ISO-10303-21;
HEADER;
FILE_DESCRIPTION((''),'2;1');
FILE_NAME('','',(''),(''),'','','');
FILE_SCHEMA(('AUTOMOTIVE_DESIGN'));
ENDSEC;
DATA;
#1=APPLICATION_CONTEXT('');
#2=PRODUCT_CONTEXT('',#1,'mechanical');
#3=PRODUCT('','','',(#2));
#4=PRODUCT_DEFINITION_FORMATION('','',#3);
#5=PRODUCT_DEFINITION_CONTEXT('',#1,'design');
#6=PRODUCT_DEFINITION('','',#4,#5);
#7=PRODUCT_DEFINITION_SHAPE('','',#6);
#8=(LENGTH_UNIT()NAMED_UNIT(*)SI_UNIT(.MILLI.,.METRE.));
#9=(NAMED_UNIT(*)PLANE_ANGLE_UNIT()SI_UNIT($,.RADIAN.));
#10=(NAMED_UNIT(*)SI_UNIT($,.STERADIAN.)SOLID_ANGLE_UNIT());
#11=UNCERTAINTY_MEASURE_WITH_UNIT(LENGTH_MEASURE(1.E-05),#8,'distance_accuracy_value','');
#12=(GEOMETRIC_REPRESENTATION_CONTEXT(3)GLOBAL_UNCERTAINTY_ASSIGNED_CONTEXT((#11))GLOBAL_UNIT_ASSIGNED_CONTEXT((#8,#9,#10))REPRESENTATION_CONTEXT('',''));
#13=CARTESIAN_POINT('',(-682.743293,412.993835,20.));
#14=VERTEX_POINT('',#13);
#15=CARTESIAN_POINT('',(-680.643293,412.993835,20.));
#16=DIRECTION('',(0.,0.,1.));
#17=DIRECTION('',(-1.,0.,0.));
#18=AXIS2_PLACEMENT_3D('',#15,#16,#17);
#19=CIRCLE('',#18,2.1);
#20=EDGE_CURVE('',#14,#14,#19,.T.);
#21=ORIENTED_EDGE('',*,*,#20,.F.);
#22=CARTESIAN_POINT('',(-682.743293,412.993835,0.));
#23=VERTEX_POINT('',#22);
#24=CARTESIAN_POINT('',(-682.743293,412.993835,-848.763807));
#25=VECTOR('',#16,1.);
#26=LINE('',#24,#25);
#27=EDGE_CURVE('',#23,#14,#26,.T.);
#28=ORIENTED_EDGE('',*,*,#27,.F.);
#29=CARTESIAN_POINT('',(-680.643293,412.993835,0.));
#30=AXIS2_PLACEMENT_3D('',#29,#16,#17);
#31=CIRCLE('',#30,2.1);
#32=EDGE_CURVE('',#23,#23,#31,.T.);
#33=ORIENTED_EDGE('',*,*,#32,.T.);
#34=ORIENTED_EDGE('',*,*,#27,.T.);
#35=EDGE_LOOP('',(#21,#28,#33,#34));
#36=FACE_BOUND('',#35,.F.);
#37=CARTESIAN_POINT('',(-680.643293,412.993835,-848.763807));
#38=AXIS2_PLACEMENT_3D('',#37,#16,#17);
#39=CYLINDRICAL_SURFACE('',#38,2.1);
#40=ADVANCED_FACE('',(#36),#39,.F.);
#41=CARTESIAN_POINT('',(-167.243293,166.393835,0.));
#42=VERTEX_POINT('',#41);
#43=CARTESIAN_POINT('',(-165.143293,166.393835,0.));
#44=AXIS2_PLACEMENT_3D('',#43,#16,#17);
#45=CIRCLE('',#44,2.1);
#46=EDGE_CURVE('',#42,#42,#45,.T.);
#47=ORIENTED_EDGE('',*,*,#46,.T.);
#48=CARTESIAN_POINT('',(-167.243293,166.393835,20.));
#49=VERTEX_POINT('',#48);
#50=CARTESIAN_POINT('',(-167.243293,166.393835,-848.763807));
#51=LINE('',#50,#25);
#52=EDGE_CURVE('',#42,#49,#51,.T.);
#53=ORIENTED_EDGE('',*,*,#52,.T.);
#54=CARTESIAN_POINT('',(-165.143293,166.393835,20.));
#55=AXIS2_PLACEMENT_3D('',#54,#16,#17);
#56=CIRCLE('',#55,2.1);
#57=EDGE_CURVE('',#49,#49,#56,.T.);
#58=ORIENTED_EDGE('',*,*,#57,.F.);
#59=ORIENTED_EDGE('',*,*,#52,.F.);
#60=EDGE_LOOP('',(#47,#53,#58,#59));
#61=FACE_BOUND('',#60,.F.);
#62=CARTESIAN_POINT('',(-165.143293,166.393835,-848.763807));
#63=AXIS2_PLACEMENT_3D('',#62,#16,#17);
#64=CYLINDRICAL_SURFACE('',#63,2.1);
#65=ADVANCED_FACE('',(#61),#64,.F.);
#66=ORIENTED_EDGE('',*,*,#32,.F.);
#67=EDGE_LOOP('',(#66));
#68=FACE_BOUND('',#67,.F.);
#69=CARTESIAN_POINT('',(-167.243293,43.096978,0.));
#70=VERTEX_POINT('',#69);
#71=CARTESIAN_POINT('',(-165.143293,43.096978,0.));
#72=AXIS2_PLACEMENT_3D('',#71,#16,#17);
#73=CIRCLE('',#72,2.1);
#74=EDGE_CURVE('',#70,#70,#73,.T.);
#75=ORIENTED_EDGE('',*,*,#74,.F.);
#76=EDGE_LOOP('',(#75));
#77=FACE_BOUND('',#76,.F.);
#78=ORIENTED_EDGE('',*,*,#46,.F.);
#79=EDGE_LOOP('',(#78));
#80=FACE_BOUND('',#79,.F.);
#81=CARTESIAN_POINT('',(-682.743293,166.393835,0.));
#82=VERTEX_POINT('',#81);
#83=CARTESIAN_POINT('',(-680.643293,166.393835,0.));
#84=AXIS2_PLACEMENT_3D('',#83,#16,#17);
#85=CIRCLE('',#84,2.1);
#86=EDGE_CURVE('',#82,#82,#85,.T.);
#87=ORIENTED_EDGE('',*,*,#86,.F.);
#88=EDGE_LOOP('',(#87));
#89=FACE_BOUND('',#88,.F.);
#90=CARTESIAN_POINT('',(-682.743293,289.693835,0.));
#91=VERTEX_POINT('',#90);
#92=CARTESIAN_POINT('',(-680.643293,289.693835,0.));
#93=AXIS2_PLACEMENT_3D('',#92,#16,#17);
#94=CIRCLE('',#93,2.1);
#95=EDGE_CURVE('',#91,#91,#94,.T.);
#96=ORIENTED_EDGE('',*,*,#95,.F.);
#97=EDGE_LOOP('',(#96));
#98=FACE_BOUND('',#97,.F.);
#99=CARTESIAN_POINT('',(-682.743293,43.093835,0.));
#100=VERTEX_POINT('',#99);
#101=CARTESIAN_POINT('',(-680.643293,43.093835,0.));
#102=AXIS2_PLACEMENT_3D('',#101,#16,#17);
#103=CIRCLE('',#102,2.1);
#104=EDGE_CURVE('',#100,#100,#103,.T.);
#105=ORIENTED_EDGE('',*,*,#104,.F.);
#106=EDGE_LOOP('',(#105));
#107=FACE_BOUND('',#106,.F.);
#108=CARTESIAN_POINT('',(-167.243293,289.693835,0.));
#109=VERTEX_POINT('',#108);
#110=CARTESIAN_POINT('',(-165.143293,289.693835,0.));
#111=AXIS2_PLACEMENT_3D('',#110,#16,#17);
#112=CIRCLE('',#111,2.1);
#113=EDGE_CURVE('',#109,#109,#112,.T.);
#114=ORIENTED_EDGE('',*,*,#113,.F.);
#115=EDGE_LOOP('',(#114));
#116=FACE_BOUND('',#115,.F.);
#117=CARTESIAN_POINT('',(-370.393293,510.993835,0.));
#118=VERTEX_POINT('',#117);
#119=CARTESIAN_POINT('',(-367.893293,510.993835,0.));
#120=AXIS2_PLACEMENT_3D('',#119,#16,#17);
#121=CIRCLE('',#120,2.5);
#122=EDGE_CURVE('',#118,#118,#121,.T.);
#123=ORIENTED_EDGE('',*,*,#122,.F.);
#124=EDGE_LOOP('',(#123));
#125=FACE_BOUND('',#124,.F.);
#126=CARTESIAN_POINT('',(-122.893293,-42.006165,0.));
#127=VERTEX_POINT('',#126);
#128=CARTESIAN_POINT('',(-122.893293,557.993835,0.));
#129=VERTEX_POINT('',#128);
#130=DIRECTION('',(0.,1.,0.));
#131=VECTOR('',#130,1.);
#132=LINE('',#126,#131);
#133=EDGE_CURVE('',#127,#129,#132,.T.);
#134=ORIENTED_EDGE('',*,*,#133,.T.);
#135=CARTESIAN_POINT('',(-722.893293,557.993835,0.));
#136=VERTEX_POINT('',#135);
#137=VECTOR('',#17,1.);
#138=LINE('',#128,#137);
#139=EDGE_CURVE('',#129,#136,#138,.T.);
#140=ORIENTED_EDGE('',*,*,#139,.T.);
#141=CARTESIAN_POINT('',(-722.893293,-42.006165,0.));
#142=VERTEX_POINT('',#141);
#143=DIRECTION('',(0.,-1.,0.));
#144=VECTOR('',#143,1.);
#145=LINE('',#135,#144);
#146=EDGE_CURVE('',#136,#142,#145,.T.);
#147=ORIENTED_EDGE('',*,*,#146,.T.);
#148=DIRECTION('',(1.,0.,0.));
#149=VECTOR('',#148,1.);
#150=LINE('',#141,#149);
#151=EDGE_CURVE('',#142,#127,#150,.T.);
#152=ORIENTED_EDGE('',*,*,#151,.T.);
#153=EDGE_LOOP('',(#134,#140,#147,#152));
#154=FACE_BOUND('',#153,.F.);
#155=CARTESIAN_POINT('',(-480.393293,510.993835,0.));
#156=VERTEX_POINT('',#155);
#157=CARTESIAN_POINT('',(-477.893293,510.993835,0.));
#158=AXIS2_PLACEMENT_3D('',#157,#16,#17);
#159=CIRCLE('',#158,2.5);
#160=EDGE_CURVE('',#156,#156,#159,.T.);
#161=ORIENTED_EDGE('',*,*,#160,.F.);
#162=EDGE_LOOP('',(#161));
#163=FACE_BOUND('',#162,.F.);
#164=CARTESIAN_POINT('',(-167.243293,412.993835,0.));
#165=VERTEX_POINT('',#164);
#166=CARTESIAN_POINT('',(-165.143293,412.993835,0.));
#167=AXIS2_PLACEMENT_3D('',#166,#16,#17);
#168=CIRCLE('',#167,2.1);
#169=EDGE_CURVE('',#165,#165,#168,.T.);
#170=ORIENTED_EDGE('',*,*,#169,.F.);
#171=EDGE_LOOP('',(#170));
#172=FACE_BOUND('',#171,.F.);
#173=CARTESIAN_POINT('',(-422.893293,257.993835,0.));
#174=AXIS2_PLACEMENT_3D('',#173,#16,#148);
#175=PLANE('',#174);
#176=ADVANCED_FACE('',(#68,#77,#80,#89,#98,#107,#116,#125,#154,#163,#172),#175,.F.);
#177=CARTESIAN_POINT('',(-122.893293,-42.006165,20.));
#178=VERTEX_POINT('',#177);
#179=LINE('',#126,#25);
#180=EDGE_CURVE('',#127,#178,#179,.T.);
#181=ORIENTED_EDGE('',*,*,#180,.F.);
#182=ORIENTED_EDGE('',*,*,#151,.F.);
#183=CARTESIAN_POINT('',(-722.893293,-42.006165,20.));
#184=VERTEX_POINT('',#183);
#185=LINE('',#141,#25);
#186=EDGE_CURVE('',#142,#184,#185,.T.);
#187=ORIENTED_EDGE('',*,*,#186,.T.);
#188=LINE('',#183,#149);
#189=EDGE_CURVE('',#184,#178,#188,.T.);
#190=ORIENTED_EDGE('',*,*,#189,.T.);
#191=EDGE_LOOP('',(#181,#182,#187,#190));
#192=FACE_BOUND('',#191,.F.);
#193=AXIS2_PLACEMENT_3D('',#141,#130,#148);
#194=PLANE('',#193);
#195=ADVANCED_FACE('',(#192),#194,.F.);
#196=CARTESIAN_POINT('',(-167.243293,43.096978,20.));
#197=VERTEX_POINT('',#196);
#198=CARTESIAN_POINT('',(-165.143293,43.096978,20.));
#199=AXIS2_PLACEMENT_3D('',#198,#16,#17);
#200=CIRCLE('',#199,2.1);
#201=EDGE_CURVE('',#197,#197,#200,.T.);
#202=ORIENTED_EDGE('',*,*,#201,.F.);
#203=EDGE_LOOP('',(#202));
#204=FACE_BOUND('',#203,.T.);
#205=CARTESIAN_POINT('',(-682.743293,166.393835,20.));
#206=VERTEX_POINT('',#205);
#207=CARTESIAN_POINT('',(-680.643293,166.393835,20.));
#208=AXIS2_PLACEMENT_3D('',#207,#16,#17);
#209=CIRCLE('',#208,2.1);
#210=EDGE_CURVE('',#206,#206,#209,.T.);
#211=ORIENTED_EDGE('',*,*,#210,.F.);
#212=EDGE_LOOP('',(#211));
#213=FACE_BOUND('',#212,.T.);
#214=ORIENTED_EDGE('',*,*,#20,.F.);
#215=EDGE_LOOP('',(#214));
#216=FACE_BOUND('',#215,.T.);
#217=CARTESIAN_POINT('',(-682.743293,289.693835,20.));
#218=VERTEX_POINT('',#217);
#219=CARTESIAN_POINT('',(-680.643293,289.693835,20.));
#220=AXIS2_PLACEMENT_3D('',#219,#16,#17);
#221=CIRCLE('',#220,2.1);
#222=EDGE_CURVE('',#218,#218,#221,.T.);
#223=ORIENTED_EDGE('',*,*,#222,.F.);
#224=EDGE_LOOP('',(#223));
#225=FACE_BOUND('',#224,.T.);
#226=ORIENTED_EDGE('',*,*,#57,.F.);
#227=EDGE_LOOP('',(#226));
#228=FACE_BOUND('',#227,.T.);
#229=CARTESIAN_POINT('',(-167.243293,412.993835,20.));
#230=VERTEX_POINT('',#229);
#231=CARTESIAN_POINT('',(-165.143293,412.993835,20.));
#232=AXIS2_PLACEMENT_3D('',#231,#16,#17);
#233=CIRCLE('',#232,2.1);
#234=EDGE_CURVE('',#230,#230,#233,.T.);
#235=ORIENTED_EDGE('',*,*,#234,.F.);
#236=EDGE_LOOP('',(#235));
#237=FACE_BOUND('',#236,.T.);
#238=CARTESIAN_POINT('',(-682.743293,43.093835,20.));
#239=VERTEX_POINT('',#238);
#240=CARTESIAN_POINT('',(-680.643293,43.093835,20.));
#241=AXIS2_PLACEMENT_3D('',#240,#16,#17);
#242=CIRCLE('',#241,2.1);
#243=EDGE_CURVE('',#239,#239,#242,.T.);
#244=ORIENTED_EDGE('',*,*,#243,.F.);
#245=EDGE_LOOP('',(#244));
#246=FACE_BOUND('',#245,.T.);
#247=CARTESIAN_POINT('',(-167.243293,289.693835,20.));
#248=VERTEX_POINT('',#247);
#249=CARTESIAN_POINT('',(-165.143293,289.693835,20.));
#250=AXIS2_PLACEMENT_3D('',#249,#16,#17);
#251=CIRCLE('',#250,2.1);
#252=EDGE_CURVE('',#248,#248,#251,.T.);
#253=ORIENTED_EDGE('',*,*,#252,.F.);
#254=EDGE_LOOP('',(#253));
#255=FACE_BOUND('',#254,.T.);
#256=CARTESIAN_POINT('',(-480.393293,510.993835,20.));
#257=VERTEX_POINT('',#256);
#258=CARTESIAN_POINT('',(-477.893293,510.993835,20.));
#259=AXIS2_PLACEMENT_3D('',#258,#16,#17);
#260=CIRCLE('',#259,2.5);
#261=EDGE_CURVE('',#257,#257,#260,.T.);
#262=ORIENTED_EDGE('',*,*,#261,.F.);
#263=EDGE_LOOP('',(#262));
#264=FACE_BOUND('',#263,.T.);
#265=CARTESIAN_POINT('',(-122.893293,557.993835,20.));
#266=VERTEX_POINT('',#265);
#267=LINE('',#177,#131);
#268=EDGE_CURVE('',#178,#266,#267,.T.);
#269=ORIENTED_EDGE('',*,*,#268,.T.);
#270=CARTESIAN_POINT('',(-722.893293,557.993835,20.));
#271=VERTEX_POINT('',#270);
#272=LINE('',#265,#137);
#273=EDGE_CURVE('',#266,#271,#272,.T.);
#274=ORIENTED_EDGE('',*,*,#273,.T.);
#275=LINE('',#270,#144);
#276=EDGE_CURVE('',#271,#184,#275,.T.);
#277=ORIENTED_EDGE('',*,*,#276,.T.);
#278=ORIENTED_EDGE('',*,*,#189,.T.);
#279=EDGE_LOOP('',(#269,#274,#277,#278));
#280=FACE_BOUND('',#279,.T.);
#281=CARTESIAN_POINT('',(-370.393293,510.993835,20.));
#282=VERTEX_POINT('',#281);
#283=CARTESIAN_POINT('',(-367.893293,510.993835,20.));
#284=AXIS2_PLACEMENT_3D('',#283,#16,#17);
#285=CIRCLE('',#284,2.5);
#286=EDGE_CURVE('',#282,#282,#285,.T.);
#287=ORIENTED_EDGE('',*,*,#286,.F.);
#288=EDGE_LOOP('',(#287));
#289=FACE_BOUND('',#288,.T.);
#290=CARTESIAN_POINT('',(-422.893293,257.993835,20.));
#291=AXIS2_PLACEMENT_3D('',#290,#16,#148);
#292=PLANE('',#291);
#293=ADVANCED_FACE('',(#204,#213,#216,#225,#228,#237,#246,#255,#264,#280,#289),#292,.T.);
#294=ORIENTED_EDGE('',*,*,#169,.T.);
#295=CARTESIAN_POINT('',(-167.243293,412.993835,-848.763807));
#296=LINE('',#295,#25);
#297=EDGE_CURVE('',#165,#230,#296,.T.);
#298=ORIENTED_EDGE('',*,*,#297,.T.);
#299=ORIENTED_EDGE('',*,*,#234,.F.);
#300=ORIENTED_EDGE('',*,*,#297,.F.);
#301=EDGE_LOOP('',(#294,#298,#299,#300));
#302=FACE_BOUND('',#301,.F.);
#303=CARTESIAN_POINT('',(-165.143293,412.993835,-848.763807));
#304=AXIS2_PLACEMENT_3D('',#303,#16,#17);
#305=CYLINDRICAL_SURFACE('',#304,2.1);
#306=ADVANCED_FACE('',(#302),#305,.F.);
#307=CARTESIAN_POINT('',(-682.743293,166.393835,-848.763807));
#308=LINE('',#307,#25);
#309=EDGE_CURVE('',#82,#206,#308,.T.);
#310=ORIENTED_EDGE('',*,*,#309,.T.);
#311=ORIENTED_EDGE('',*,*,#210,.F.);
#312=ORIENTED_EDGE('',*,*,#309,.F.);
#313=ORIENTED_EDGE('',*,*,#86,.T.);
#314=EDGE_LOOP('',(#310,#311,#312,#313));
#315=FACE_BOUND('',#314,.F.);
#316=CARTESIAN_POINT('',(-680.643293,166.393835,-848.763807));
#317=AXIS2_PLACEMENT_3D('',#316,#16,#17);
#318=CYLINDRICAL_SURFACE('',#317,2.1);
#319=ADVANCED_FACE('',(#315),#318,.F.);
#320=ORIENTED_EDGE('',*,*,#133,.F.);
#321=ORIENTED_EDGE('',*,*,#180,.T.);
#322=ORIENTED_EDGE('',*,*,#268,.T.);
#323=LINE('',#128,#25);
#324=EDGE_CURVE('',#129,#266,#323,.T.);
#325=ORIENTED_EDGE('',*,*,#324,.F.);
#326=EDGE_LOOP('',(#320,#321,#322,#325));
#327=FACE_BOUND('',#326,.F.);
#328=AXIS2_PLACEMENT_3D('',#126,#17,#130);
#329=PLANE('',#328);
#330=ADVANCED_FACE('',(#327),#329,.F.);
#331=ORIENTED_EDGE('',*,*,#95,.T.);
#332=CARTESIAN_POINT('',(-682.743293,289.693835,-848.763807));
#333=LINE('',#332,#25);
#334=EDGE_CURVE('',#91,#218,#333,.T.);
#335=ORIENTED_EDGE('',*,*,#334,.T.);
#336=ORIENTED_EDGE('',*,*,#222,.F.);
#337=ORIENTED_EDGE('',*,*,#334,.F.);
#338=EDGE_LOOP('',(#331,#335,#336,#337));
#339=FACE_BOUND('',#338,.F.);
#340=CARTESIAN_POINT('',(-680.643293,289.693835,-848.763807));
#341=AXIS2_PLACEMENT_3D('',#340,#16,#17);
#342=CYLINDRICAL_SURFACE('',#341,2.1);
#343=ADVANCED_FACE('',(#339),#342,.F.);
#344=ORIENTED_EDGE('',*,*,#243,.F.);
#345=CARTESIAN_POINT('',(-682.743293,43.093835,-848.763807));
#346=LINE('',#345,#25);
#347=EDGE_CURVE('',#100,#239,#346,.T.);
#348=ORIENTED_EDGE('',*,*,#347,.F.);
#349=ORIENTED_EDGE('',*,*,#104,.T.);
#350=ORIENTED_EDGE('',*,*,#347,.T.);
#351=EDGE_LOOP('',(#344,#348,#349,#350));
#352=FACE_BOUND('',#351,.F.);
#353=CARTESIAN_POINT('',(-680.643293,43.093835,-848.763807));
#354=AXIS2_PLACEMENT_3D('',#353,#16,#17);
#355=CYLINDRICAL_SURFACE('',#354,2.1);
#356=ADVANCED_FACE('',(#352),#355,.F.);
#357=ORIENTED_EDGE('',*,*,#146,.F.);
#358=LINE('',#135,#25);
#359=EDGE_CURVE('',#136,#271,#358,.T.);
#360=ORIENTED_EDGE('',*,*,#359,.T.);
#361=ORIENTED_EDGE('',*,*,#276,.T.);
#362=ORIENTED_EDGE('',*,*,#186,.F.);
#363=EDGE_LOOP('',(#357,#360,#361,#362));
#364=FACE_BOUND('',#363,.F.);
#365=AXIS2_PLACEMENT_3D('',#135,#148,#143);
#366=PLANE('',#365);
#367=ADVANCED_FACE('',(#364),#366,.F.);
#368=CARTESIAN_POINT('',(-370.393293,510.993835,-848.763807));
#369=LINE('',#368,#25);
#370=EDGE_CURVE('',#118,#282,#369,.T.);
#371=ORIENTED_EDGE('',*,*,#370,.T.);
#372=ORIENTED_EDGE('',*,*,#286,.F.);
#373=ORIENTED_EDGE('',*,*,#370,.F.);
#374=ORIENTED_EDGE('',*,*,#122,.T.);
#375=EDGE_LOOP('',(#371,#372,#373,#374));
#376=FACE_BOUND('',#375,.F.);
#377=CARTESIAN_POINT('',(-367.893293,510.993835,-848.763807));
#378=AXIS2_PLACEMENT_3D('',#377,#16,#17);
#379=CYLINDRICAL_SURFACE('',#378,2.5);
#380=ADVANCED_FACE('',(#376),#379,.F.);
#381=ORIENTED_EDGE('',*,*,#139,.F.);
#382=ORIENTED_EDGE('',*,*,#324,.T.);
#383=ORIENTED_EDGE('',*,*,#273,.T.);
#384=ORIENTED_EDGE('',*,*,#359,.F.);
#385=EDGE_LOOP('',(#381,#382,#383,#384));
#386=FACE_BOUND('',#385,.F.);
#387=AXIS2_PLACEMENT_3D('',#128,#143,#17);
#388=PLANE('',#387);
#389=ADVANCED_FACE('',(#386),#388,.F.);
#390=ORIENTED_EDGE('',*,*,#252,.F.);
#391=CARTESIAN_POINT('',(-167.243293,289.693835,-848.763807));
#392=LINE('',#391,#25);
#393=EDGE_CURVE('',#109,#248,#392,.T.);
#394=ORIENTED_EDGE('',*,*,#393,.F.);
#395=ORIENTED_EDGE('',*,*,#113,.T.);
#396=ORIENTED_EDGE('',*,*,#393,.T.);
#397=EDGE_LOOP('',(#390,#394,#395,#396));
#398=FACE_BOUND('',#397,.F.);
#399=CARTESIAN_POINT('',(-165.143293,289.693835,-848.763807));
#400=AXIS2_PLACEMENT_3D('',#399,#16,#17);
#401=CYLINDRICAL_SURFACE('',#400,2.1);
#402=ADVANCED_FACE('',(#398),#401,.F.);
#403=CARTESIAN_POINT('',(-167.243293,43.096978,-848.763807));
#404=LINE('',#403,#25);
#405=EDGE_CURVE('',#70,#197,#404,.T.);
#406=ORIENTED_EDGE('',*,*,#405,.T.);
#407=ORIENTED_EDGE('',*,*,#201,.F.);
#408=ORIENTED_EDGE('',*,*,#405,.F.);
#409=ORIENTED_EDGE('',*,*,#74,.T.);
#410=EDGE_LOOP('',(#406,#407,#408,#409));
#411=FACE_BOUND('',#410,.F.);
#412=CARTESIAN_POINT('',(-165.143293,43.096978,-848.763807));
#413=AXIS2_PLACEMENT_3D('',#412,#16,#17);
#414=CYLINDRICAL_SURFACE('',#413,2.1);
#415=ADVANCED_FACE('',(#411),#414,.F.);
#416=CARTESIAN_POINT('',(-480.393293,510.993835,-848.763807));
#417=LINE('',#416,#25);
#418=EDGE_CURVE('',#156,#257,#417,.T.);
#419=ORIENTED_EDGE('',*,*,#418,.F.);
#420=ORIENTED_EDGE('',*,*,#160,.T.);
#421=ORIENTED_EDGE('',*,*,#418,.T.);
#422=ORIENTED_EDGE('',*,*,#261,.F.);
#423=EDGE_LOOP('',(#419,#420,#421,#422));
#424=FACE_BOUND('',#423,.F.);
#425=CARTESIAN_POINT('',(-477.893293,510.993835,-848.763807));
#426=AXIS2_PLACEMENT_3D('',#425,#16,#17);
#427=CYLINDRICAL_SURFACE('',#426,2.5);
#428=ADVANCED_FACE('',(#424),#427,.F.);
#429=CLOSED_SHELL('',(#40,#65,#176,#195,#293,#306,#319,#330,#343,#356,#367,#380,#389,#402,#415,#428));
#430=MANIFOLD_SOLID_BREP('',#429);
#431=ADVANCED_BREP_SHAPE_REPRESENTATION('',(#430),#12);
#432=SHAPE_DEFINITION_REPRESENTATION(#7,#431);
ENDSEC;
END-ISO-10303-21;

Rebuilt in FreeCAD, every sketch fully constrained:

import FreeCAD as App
import Part
import Sketcher
from FreeCAD import Vector


def add_polygon(sketch, points):
    """Adds a closed chain of lines whose ends are joined by coincident constraints."""
    first, n = sketch.GeometryCount, len(points)
    for a, b in zip(points, points[1:] + points[:1]):
        sketch.addGeometry(Part.LineSegment(App.Vector(*a, 0), App.Vector(*b, 0)), False)
    for i in range(n):
        sketch.addConstraint(Sketcher.Constraint("Coincident", first + i, 2, first + (i + 1) % n, 1))

doc = App.newDocument("Part")
body = doc.addObject("PartDesign::Body", "Body")

sketch1 = body.newObject("Sketcher::SketchObject", "Sketch")
sketch1.AttachmentSupport = (doc.getObject("XY_Plane"), [""])
sketch1.MapMode = "FlatFace"
add_polygon(sketch1, [(-122.893293, 557.993835), (-722.893293, 557.993835), (-722.893293, -42.006165), (-122.893293, -42.006165)])
sketch1.addConstraint([
    Sketcher.Constraint("Horizontal", 0),
    Sketcher.Constraint("Vertical", 1),
    Sketcher.Constraint("Horizontal", 2),
    Sketcher.Constraint("Vertical", 3),
    Sketcher.Constraint("Equal", 2, 1),
    Sketcher.Constraint("DistanceX", 0, 2, 0, 1, 600.0),
    Sketcher.Constraint("DistanceX", 0, 2, -1, 1, 722.893293),
    Sketcher.Constraint("DistanceY", -1, 1, 0, 2, 557.993835),
])
pad1 = body.newObject("PartDesign::Pad", "Pad")
pad1.Profile = sketch1
pad1.Length = 20

sketch2 = body.newObject("Sketcher::SketchObject", "Sketch001")
sketch2.AttachmentSupport = (doc.getObject("XY_Plane"), [""])
sketch2.MapMode = "FlatFace"
sketch2.addGeometry([
    Part.Circle(Vector(-477.893293, 510.993835, 0), Vector(0, 0, 1), 2.5),
    Part.Circle(Vector(-367.893293, 510.993835, 0), Vector(0, 0, 1), 2.5),
], False)
sketch2.addConstraint([
    Sketcher.Constraint("Equal", 0, 1),
    Sketcher.Constraint("Horizontal", 0, 3, 1, 3),
    Sketcher.Constraint("Diameter", 0, 5.0),
    Sketcher.Constraint("DistanceX", 0, 3, 1, 3, 110.0),
    Sketcher.Constraint("DistanceX", 0, 3, -1, 1, 477.893293),
    Sketcher.Constraint("DistanceY", -1, 1, 0, 3, 510.993835),
])
doc.recompute()
hole = body.newObject("PartDesign::Hole", "Hole")
hole.Profile = sketch2
hole.ThreadType = "None"
hole.Diameter = 5
hole.DepthType = "ThroughAll"
hole.Reversed = True

sketch3 = body.newObject("Sketcher::SketchObject", "Sketch002")
sketch3.AttachmentSupport = (doc.getObject("XY_Plane"), [""])
sketch3.MapMode = "FlatFace"
sketch3.addGeometry([
    Part.Circle(Vector(-680.643293, 412.993835, 0), Vector(0, 0, 1), 2.1),
    Part.Circle(Vector(-680.643293, 289.693835, 0), Vector(0, 0, 1), 2.1),
    Part.Circle(Vector(-680.643293, 166.393835, 0), Vector(0, 0, 1), 2.1),
    Part.Circle(Vector(-680.643293, 43.093835, 0), Vector(0, 0, 1), 2.1),
    Part.Circle(Vector(-165.143293, 43.096978, 0), Vector(0, 0, 1), 2.1),
    Part.Circle(Vector(-165.143293, 166.393835, 0), Vector(0, 0, 1), 2.1),
    Part.Circle(Vector(-165.143293, 289.693835, 0), Vector(0, 0, 1), 2.1),
    Part.Circle(Vector(-165.143293, 412.993835, 0), Vector(0, 0, 1), 2.1),
], False)
sketch3.addConstraint([
    Sketcher.Constraint("Equal", 0, 1),
    Sketcher.Constraint("Equal", 1, 2),
    Sketcher.Constraint("Equal", 2, 3),
    Sketcher.Constraint("Equal", 3, 4),
    Sketcher.Constraint("Equal", 4, 5),
    Sketcher.Constraint("Equal", 5, 6),
    Sketcher.Constraint("Equal", 6, 7),
    Sketcher.Constraint("Horizontal", 2, 3, 5, 3),
    Sketcher.Constraint("Horizontal", 1, 3, 6, 3),
    Sketcher.Constraint("Horizontal", 0, 3, 7, 3),
    Sketcher.Constraint("Vertical", 0, 3, 1, 3),
    Sketcher.Constraint("Vertical", 1, 3, 2, 3),
    Sketcher.Constraint("Vertical", 2, 3, 3, 3),
    Sketcher.Constraint("Vertical", 4, 3, 5, 3),
    Sketcher.Constraint("Vertical", 5, 3, 6, 3),
    Sketcher.Constraint("Vertical", 6, 3, 7, 3),
    Sketcher.Constraint("Diameter", 0, 4.2),
    Sketcher.Constraint("DistanceY", 1, 3, 0, 3, 123.3),
    Sketcher.Constraint("DistanceY", 2, 3, 1, 3, 123.3),
    Sketcher.Constraint("DistanceY", 3, 3, 2, 3, 123.3),
    Sketcher.Constraint("DistanceX", 3, 3, 4, 3, 515.5),
    Sketcher.Constraint("DistanceY", -1, 1, 4, 3, 43.096978),
    Sketcher.Constraint("DistanceX", 0, 3, -1, 1, 680.643293),
    Sketcher.Constraint("DistanceY", -1, 1, 0, 3, 412.993835),
])
doc.recompute()
hole2 = body.newObject("PartDesign::Hole", "Hole001")
hole2.Profile = sketch3
hole2.ThreadType = "None"
hole2.Diameter = 4.2
hole2.DepthType = "ThroughAll"
hole2.Reversed = True

doc.recompute()
